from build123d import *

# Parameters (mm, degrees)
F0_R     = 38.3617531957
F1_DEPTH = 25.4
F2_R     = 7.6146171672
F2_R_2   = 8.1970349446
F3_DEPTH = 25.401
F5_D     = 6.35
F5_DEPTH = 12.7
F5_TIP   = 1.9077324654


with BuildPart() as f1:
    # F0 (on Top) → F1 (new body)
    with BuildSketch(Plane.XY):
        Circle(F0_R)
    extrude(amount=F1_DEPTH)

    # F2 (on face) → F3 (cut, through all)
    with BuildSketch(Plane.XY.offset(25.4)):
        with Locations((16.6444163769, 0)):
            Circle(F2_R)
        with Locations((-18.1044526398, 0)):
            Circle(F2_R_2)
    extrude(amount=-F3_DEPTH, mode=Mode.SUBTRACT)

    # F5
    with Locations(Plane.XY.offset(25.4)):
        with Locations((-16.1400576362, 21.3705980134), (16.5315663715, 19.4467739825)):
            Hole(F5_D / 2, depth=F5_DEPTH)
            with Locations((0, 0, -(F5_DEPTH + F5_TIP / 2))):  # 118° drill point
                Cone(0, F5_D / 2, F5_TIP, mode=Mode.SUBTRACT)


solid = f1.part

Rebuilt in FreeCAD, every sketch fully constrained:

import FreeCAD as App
import Part
import Sketcher
Q = App.Units.Quantity

doc = App.newDocument("Part")
params = doc.addObject("Spreadsheet::Sheet", "Params")
for row, (alias, value) in enumerate([
    ("pad1_length", "1 in"),
    ("sketch3_diameter", "0.25 in"),
    ("hole_diameter", "0.25 in"),
    ("hole_depth", "0.5 in"),
], start=1):
    params.set(f"A{row}", alias)
    params.set(f"B{row}", "=" + value)
    params.setAlias(f"B{row}", alias)

body = doc.addObject("PartDesign::Body", "Body")

sketch1 = body.newObject("Sketcher::SketchObject", "Sketch")
sketch1.AttachmentSupport = (doc.getObject("XY_Plane"), [""])
sketch1.MapMode = "FlatFace"
sketch1.addGeometry(Part.Circle(App.Vector(0, 0, 0), App.Vector(0, 0, 1), 38.361753), False)
sketch1.addConstraint(Sketcher.Constraint("Coincident", 0, 3, -1, 1))
sketch1.addConstraint(Sketcher.Constraint("Diameter", 0, 76.723506))
pad1 = body.newObject("PartDesign::Pad", "Pad")
pad1.Profile = sketch1
pad1.setExpression("Length", "Params.pad1_length")

sketch2 = body.newObject("Sketcher::SketchObject", "Sketch001")
sketch2.AttachmentSupport = (doc.getObject("XY_Plane"), [""])
sketch2.MapMode = "FlatFace"
sketch2.AttachmentOffset = App.Placement(App.Vector(0, 0, 1 * 25.4), App.Rotation())
sketch2.addGeometry(Part.Circle(App.Vector(16.644416, 0, 0), App.Vector(0, 0, 1), 7.614617), False)
sketch2.addGeometry(Part.Circle(App.Vector(-18.104453, 0, 0), App.Vector(0, 0, 1), 8.197035), False)
sketch2.addConstraint(Sketcher.Constraint("PointOnObject", 0, 3, -1))
sketch2.addConstraint(Sketcher.Constraint("PointOnObject", 1, 3, -1))
sketch2.addConstraint(Sketcher.Constraint("Diameter", 1, 16.39407))
sketch2.addConstraint(Sketcher.Constraint("Diameter", 0, 15.229234))
sketch2.addConstraint(Sketcher.Constraint("DistanceX", 1, 3, 0, 3, 34.748869))
sketch2.addConstraint(Sketcher.Constraint("DistanceX", -1, 1, 0, 3, 16.644416))
pocket1 = body.newObject("PartDesign::Pocket", "Pocket")
pocket1.Profile = sketch2
pocket1.Type = "ThroughAll"

sketch3 = body.newObject("Sketcher::SketchObject", "Sketch002")
sketch3.AttachmentSupport = (doc.getObject("XY_Plane"), [""])
sketch3.MapMode = "FlatFace"
sketch3.AttachmentOffset = App.Placement(App.Vector(0, 0, 1 * 25.4), App.Rotation())
sketch3.addGeometry(Part.Circle(App.Vector(-16.140058, 21.370598, 0), App.Vector(0, 0, 1), 3.175), False)
sketch3.addGeometry(Part.Circle(App.Vector(16.531566, 19.446774, 0), App.Vector(0, 0, 1), 3.175), False)
sketch3.addConstraint(Sketcher.Constraint("Equal", 0, 1))
sketch3.addConstraint(Sketcher.Constraint("Diameter", 0, Q("0.25 in")))
sketch3.addConstraint(Sketcher.Constraint("DistanceY", -1, 1, 0, 3, 21.370598))
sketch3.addConstraint(Sketcher.Constraint("DistanceX", 0, 3, -1, 1, 16.140058))
sketch3.addConstraint(Sketcher.Constraint("DistanceX", -1, 1, 1, 3, 16.531566))
sketch3.addConstraint(Sketcher.Constraint("DistanceY", -1, 1, 1, 3, 19.446774))
sketch3.setExpression("Constraints[1]", "Params.sketch3_diameter")
doc.recompute()
hole = body.newObject("PartDesign::Hole", "Hole")
hole.Profile = sketch3
hole.ThreadType = "None"
hole.setExpression("Diameter", "Params.hole_diameter")
hole.DepthType = "Dimension"
hole.setExpression("Depth", "Params.hole_depth")
hole.DrillPoint = "Angled"
hole.DrillPointAngle = 118

doc.recompute()
